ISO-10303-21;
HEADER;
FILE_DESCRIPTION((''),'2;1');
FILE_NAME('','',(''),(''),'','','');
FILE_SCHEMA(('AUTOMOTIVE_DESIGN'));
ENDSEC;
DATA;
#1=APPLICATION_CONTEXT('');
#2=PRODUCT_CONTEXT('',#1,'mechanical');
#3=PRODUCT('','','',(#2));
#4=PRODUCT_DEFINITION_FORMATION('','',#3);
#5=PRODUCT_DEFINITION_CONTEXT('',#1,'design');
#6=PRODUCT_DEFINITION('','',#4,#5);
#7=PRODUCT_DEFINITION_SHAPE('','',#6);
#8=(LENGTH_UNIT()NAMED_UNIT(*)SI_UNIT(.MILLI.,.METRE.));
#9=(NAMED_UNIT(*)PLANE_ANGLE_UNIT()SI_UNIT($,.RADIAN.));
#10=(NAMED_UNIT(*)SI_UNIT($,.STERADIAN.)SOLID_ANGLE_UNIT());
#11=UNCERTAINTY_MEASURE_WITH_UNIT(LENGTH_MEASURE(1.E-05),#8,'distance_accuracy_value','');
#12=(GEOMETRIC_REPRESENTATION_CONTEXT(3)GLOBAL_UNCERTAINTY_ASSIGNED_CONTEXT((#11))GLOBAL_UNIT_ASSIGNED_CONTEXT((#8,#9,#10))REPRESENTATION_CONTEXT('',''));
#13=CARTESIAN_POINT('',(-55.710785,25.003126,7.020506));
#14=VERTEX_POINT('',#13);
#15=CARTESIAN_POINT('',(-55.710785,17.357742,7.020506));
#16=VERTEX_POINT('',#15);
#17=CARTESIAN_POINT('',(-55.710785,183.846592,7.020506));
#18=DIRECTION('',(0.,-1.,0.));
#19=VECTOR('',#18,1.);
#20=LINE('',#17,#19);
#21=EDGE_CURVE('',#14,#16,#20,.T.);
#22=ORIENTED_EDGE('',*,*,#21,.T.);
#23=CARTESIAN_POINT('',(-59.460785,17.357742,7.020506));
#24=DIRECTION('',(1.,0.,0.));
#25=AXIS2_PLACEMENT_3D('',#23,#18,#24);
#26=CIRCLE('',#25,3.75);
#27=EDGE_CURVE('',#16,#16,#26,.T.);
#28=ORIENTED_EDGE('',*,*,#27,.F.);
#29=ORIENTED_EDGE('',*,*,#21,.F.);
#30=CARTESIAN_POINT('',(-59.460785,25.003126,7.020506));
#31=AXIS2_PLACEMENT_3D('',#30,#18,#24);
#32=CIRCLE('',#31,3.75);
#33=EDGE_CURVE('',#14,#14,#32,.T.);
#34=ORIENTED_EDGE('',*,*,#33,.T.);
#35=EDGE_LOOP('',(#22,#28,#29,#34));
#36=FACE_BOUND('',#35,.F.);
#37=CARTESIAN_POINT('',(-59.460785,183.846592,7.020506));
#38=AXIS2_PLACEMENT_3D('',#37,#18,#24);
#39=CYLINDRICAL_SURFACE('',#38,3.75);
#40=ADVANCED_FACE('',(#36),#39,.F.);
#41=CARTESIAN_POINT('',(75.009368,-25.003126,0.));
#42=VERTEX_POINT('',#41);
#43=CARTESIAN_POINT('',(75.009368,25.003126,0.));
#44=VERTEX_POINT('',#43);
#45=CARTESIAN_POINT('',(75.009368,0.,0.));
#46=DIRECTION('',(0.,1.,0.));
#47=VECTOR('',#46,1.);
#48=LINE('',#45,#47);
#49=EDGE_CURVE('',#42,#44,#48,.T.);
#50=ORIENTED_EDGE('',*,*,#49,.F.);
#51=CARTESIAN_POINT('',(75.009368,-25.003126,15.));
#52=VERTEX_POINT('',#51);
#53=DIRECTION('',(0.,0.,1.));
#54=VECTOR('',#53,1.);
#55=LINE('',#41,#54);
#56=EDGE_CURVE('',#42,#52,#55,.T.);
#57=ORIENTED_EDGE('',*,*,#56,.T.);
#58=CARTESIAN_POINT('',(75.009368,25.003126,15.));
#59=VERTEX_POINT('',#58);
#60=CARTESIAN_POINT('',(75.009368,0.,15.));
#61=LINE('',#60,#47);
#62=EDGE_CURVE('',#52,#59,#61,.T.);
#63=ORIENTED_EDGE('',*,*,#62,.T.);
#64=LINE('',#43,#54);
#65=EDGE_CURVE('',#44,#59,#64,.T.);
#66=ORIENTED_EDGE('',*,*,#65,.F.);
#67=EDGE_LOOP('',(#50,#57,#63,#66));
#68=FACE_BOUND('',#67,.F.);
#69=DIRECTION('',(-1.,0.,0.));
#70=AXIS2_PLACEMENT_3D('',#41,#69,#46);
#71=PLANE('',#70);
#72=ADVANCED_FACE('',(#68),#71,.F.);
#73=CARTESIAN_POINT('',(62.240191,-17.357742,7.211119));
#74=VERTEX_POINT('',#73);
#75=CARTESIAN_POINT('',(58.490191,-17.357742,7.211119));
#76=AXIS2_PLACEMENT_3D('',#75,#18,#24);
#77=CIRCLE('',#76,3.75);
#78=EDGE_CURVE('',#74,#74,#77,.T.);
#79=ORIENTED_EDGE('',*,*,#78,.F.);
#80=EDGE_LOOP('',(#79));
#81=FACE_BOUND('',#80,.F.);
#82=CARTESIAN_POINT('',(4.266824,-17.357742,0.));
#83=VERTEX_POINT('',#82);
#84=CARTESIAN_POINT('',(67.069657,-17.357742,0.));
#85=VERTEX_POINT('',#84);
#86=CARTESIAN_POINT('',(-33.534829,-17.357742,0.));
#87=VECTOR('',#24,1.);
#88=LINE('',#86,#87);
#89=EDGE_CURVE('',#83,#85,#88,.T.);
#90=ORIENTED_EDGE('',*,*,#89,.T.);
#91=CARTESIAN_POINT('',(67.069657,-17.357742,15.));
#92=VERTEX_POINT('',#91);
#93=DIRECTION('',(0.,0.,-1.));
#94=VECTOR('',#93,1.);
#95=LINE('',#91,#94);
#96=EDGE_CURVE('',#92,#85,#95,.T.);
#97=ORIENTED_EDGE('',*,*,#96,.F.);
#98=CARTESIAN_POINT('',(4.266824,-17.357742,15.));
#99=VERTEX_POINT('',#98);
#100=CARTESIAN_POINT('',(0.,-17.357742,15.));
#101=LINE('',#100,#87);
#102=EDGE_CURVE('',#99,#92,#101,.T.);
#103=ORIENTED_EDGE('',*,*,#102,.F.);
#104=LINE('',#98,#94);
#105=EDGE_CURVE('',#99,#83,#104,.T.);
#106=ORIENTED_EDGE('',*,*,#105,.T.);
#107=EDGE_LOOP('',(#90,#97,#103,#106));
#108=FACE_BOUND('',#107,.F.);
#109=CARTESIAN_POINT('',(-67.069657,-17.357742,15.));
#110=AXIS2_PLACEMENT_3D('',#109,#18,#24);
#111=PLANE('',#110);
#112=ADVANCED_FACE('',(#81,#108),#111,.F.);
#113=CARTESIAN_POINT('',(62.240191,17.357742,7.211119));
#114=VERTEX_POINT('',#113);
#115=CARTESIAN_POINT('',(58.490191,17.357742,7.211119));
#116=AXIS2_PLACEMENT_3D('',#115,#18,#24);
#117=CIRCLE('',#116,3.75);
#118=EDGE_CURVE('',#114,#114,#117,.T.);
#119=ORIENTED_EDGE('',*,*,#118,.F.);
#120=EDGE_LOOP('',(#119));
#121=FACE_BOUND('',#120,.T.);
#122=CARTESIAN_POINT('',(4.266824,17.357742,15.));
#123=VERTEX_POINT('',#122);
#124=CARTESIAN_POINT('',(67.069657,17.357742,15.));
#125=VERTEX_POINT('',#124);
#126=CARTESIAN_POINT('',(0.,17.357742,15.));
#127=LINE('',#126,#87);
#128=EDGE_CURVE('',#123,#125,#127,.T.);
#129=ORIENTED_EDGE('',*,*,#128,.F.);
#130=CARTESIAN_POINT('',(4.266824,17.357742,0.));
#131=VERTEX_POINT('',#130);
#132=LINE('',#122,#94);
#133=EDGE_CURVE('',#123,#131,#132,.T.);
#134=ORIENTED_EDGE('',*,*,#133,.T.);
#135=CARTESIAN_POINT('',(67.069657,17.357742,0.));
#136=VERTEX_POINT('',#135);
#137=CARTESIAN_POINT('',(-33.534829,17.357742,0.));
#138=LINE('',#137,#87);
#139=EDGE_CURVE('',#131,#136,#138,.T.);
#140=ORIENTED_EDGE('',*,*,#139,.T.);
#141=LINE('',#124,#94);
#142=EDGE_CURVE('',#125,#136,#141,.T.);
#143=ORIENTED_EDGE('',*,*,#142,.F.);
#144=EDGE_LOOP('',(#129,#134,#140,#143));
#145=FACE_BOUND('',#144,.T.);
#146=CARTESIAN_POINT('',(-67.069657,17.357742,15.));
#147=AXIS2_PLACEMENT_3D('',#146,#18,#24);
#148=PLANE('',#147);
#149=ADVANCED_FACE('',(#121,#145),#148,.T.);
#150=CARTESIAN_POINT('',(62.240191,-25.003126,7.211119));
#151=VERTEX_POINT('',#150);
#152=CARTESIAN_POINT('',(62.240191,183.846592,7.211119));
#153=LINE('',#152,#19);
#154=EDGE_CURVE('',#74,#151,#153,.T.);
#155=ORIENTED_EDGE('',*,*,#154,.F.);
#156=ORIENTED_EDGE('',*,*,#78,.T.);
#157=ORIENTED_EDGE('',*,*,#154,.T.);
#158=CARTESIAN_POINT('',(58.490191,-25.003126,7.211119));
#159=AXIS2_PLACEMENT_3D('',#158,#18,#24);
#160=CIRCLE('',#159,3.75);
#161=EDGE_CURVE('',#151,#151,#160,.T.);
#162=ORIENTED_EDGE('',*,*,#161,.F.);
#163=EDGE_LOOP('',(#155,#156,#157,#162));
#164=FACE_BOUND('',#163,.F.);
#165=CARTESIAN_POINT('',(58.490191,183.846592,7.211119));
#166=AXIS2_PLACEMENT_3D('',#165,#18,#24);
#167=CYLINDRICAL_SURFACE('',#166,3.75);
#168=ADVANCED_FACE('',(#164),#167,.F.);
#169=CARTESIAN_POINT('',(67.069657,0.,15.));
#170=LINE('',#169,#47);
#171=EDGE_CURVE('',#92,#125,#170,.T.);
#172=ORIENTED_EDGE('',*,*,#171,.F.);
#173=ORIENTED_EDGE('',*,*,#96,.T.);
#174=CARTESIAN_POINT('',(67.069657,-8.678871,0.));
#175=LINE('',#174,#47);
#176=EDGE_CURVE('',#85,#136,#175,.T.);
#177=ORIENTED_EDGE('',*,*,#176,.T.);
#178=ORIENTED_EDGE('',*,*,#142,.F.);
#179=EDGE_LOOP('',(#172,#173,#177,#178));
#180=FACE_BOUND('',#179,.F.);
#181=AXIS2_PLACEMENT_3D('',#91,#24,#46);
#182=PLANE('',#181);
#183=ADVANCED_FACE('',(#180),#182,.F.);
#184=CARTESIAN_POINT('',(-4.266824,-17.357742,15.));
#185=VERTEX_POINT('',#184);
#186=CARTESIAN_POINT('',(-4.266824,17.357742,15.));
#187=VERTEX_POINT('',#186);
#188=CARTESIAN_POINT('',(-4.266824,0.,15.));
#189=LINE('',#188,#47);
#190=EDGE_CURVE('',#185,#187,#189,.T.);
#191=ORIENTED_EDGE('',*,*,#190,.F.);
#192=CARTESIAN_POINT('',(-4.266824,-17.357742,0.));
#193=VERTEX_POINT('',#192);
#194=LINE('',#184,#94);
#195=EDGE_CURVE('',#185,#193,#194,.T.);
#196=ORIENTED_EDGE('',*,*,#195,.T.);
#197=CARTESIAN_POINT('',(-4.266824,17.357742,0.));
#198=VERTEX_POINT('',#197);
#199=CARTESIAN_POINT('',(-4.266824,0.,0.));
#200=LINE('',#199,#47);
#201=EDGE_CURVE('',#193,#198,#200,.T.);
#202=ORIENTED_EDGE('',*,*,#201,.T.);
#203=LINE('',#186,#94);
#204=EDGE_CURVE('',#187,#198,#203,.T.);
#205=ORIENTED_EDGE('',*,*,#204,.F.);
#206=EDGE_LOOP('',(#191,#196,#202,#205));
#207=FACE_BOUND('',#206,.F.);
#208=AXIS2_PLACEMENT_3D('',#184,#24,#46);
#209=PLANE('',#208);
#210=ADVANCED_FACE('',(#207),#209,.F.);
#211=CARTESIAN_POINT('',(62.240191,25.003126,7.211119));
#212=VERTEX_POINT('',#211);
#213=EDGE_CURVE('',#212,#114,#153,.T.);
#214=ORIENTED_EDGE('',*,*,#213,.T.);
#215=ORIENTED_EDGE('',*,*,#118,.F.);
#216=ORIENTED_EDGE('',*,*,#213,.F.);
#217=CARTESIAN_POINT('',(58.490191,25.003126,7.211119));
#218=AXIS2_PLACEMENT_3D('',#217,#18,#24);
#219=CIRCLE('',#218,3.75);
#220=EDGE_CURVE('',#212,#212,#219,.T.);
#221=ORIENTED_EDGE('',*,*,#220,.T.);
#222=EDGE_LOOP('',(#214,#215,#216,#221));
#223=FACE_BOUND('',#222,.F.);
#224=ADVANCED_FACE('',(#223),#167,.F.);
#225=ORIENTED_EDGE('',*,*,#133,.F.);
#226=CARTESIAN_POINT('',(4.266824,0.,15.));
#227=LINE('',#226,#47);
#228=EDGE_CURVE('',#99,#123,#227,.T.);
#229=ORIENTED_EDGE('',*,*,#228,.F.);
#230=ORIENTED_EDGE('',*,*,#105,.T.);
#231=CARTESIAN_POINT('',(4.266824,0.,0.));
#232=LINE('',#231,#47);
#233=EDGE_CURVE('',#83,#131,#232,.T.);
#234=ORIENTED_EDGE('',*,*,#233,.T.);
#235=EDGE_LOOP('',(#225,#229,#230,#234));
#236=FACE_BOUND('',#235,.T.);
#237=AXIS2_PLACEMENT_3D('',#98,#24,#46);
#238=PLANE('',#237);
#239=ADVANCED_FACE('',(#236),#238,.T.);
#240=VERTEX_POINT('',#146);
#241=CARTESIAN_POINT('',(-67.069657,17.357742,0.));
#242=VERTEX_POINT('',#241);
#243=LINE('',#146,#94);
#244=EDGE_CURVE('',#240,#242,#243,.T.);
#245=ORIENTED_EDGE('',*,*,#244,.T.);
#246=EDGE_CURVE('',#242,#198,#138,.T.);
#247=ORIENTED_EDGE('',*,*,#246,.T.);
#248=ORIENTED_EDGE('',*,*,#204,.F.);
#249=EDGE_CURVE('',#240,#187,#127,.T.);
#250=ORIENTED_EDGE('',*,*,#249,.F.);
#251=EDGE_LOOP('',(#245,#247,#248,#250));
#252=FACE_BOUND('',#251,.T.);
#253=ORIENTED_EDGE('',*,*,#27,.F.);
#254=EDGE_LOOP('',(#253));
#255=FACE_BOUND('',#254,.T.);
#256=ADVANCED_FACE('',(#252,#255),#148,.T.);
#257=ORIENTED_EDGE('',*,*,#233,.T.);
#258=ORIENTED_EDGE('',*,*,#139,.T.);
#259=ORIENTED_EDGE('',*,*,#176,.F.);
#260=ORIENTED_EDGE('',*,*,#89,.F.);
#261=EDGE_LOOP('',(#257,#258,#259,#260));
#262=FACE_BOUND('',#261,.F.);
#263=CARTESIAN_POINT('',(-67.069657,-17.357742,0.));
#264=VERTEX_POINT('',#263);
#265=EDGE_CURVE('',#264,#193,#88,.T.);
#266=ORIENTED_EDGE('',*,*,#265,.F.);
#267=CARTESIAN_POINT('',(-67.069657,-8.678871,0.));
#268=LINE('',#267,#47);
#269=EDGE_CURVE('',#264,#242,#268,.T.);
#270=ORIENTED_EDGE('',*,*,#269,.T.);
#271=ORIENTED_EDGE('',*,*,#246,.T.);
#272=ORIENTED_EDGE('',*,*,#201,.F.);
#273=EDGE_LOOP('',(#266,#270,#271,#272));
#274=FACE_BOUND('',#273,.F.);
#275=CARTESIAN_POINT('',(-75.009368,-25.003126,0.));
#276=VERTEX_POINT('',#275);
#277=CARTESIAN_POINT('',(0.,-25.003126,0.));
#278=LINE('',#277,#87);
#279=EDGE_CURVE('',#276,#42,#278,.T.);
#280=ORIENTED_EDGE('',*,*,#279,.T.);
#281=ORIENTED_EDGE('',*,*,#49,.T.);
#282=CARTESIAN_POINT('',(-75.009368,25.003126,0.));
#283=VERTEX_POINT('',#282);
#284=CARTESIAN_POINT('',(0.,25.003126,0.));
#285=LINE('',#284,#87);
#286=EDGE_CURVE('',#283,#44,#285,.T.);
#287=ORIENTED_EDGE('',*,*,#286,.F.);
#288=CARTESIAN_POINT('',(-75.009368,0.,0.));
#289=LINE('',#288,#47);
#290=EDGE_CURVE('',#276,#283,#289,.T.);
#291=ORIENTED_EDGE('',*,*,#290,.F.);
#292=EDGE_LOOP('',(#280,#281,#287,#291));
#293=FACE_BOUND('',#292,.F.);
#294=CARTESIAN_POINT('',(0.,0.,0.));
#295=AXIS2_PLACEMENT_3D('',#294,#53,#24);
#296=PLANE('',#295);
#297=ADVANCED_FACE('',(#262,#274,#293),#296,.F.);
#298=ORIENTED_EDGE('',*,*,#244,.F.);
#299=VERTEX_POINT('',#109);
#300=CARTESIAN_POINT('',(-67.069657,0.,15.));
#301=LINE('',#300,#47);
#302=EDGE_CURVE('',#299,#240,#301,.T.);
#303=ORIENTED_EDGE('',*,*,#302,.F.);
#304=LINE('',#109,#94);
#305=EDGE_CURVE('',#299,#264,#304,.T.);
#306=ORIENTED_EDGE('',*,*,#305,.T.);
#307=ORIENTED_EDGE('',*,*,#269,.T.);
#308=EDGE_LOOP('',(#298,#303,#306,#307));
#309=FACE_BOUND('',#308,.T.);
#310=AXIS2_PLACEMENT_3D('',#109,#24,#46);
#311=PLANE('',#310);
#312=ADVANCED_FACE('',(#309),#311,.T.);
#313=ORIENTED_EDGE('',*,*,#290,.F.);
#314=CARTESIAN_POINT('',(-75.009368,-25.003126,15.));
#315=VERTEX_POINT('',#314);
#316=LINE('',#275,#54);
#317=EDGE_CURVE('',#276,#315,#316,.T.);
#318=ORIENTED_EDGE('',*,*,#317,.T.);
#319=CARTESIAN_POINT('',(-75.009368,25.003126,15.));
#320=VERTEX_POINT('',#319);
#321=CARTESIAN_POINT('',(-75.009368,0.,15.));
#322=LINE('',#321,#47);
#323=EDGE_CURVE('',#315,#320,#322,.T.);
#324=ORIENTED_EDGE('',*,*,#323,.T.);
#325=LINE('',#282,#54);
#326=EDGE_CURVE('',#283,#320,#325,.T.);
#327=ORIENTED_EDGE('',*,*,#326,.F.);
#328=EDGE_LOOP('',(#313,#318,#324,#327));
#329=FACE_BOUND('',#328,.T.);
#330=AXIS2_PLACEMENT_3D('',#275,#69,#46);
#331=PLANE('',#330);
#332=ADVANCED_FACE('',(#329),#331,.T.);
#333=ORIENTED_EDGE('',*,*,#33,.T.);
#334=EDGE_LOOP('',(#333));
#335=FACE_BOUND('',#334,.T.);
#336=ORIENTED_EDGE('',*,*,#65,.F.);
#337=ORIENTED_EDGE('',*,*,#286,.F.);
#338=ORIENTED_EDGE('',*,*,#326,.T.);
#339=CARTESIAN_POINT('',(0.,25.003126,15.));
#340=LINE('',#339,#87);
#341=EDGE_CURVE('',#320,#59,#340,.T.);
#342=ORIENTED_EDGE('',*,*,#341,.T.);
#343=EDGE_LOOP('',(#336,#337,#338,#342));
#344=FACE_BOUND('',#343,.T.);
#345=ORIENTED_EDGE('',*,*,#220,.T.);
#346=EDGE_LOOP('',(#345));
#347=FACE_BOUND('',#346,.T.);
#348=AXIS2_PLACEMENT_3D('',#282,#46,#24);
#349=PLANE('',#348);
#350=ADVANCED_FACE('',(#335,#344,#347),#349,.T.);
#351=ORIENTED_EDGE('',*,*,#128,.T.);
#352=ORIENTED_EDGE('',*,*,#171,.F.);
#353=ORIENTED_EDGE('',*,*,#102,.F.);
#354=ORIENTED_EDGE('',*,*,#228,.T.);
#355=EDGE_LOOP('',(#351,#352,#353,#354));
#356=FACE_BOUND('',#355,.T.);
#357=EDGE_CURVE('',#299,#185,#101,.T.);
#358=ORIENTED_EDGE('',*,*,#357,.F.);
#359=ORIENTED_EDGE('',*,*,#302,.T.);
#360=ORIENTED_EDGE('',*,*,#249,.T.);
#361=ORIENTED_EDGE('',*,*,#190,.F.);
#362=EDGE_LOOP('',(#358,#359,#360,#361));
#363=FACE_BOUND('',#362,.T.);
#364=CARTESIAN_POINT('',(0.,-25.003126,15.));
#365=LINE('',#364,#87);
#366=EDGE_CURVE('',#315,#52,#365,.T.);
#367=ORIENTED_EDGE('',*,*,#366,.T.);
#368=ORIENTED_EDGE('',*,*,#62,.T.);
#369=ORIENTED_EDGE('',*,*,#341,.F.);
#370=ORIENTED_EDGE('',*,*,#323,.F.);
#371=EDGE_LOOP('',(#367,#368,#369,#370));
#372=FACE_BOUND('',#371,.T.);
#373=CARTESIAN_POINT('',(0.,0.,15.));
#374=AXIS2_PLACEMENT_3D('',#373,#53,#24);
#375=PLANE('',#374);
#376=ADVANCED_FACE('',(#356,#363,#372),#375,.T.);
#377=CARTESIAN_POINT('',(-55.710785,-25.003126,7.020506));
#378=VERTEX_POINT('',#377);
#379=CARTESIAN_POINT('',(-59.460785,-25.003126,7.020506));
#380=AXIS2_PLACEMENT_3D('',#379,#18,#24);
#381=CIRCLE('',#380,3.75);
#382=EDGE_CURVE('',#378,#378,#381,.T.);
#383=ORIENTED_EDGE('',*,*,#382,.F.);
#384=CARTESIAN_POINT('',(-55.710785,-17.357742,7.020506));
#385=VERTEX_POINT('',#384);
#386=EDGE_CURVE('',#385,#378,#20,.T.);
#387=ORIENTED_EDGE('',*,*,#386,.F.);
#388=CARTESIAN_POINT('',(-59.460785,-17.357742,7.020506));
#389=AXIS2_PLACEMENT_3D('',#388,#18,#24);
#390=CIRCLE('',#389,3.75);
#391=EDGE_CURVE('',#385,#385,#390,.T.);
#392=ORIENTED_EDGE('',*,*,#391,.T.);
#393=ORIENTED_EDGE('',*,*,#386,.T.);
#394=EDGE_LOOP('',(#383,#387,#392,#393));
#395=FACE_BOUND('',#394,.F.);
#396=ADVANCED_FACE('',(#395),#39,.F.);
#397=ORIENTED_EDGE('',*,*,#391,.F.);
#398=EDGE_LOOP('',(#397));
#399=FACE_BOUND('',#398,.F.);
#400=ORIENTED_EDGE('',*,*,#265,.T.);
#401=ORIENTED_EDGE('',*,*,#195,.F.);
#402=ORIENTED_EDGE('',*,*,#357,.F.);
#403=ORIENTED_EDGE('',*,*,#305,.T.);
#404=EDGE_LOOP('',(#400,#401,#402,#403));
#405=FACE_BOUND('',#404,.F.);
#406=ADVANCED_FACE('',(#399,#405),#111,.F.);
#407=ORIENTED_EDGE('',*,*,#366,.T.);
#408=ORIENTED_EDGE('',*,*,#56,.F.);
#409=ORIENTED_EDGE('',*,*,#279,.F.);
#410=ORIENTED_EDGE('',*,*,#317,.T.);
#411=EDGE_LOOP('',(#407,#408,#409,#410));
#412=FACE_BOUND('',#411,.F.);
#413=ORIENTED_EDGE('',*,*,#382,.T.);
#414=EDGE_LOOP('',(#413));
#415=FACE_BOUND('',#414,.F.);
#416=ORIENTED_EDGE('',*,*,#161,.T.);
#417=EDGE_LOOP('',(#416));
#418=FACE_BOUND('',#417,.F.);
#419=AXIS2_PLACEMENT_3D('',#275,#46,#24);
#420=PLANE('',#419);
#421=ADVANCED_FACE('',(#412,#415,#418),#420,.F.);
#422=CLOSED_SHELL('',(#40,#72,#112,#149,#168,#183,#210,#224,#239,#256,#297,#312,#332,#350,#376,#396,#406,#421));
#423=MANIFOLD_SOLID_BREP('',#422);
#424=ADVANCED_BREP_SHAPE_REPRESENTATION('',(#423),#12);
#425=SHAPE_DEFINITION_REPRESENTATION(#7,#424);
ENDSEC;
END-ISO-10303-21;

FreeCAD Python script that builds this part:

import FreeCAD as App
import Part
import Sketcher
from FreeCAD import Vector


def add_polygon(sketch, points):
    """Adds a closed chain of lines whose ends are joined by coincident constraints."""
    first, n = sketch.GeometryCount, len(points)
    for a, b in zip(points, points[1:] + points[:1]):
        sketch.addGeometry(Part.LineSegment(App.Vector(*a, 0), App.Vector(*b, 0)), False)
    for i in range(n):
        sketch.addConstraint(Sketcher.Constraint("Coincident", first + i, 2, first + (i + 1) % n, 1))

doc = App.newDocument("Part")
body = doc.addObject("PartDesign::Body", "Body")

sketch1 = body.newObject("Sketcher::SketchObject", "Sketch")
sketch1.AttachmentSupport = (doc.getObject("XY_Plane"), [""])
sketch1.MapMode = "FlatFace"
add_polygon(sketch1, [(-75.009368, 25.003126), (-75.009368, -25.003126), (75.009368, -25.003126), (75.009368, 25.003126)])
sketch1.addConstraint([
    Sketcher.Constraint("Vertical", 0),
    Sketcher.Constraint("Horizontal", 1),
    Sketcher.Constraint("Vertical", 2),
    Sketcher.Constraint("Horizontal", 3),
    Sketcher.Constraint("Symmetric", 0, 2, 2, 2, -1, 1),
    Sketcher.Constraint("DistanceY", 0, 2, 0, 1, 50.006252),
    Sketcher.Constraint("DistanceX", 1, 1, 1, 2, 150.018737),
])
pad1 = body.newObject("PartDesign::Pad", "Pad")
pad1.Profile = sketch1
pad1.Length = 15

sketch2 = body.newObject("Sketcher::SketchObject", "Sketch001")
sketch2.AttachmentSupport = (doc.getObject("XY_Plane"), [""])
sketch2.MapMode = "FlatFace"
sketch2.AttachmentOffset = App.Placement(Vector(0, 0, 15), App.Rotation())
add_polygon(sketch2, [(-67.069657, 17.357742), (-67.069657, -17.357742), (67.069657, -17.357742), (67.069657, 17.357742)])
sketch2.addConstraint([
    Sketcher.Constraint("Vertical", 0),
    Sketcher.Constraint("Horizontal", 1),
    Sketcher.Constraint("Vertical", 2),
    Sketcher.Constraint("Horizontal", 3),
    Sketcher.Constraint("Symmetric", 0, 2, 2, 2, -1, 1),
    Sketcher.Constraint("DistanceX", 1, 1, 1, 2, 134.139314),
    Sketcher.Constraint("DistanceY", 0, 2, 0, 1, 34.715485),
])
pocket1 = body.newObject("PartDesign::Pocket", "Pocket")
pocket1.Profile = sketch2
pocket1.Length = 39.6

sketch3 = body.newObject("Sketcher::SketchObject", "Sketch002")
sketch3.AttachmentSupport = (doc.getObject("XY_Plane"), [""])
sketch3.MapMode = "FlatFace"
sketch3.AttachmentOffset = App.Placement(Vector(0, 0, 15), App.Rotation())
add_polygon(sketch3, [(-4.266824, 17.357742), (-4.266824, -17.357742), (4.266824, -17.357742), (4.266824, 17.357742)])
sketch3.addConstraint([
    Sketcher.Constraint("Vertical", 0),
    Sketcher.Constraint("Horizontal", 1),
    Sketcher.Constraint("Vertical", 2),
    Sketcher.Constraint("Horizontal", 3),
    Sketcher.Constraint("Symmetric", 0, 2, 2, 2, -1, 1),
    Sketcher.Constraint("DistanceX", 1, 1, 1, 2, 8.533647),
    Sketcher.Constraint("DistanceY", 0, 2, 0, 1, 34.715485),
])
pad2 = body.newObject("PartDesign::Pad", "Pad001")
pad2.Profile = sketch3
pad2.Length = 15
pad2.Reversed = True

sketch4 = body.newObject("Sketcher::SketchObject", "Sketch003")
sketch4.AttachmentSupport = (doc.getObject("XZ_Plane"), [""])
sketch4.MapMode = "FlatFace"
sketch4.AttachmentOffset = App.Placement(Vector(0, 0, -25.003126), App.Rotation())
sketch4.addGeometry(Part.Circle(Vector(58.490191, 7.211119, 0), Vector(0, 0, 1), 3.75), False)
sketch4.addConstraint([
    Sketcher.Constraint("Diameter", 0, 7.5),
    Sketcher.Constraint("DistanceX", -1, 1, 0, 3, 58.490191),
    Sketcher.Constraint("DistanceY", -1, 1, 0, 3, 7.211119),
])
doc.recompute()
hole = body.newObject("PartDesign::Hole", "Hole")
hole.Profile = sketch4
hole.ThreadType = "None"
hole.Diameter = 7.5
hole.DepthType = "ThroughAll"
hole.Reversed = True

sketch5 = body.newObject("Sketcher::SketchObject", "Sketch004")
sketch5.AttachmentSupport = (doc.getObject("XZ_Plane"), [""])
sketch5.MapMode = "FlatFace"
sketch5.AttachmentOffset = App.Placement(Vector(0, 0, -25.003126), App.Rotation())
sketch5.addGeometry(Part.Circle(Vector(-59.460785, 7.020506, 0), Vector(0, 0, 1), 3.75), False)
sketch5.addConstraint([
    Sketcher.Constraint("Diameter", 0, 7.5),
    Sketcher.Constraint("DistanceX", 0, 3, -1, 1, 59.460785),
    Sketcher.Constraint("DistanceY", -1, 1, 0, 3, 7.020506),
])
doc.recompute()
hole2 = body.newObject("PartDesign::Hole", "Hole001")
hole2.Profile = sketch5
hole2.ThreadType = "None"
hole2.Diameter = 7.5
hole2.DepthType = "ThroughAll"
hole2.Reversed = True

doc.recompute()
